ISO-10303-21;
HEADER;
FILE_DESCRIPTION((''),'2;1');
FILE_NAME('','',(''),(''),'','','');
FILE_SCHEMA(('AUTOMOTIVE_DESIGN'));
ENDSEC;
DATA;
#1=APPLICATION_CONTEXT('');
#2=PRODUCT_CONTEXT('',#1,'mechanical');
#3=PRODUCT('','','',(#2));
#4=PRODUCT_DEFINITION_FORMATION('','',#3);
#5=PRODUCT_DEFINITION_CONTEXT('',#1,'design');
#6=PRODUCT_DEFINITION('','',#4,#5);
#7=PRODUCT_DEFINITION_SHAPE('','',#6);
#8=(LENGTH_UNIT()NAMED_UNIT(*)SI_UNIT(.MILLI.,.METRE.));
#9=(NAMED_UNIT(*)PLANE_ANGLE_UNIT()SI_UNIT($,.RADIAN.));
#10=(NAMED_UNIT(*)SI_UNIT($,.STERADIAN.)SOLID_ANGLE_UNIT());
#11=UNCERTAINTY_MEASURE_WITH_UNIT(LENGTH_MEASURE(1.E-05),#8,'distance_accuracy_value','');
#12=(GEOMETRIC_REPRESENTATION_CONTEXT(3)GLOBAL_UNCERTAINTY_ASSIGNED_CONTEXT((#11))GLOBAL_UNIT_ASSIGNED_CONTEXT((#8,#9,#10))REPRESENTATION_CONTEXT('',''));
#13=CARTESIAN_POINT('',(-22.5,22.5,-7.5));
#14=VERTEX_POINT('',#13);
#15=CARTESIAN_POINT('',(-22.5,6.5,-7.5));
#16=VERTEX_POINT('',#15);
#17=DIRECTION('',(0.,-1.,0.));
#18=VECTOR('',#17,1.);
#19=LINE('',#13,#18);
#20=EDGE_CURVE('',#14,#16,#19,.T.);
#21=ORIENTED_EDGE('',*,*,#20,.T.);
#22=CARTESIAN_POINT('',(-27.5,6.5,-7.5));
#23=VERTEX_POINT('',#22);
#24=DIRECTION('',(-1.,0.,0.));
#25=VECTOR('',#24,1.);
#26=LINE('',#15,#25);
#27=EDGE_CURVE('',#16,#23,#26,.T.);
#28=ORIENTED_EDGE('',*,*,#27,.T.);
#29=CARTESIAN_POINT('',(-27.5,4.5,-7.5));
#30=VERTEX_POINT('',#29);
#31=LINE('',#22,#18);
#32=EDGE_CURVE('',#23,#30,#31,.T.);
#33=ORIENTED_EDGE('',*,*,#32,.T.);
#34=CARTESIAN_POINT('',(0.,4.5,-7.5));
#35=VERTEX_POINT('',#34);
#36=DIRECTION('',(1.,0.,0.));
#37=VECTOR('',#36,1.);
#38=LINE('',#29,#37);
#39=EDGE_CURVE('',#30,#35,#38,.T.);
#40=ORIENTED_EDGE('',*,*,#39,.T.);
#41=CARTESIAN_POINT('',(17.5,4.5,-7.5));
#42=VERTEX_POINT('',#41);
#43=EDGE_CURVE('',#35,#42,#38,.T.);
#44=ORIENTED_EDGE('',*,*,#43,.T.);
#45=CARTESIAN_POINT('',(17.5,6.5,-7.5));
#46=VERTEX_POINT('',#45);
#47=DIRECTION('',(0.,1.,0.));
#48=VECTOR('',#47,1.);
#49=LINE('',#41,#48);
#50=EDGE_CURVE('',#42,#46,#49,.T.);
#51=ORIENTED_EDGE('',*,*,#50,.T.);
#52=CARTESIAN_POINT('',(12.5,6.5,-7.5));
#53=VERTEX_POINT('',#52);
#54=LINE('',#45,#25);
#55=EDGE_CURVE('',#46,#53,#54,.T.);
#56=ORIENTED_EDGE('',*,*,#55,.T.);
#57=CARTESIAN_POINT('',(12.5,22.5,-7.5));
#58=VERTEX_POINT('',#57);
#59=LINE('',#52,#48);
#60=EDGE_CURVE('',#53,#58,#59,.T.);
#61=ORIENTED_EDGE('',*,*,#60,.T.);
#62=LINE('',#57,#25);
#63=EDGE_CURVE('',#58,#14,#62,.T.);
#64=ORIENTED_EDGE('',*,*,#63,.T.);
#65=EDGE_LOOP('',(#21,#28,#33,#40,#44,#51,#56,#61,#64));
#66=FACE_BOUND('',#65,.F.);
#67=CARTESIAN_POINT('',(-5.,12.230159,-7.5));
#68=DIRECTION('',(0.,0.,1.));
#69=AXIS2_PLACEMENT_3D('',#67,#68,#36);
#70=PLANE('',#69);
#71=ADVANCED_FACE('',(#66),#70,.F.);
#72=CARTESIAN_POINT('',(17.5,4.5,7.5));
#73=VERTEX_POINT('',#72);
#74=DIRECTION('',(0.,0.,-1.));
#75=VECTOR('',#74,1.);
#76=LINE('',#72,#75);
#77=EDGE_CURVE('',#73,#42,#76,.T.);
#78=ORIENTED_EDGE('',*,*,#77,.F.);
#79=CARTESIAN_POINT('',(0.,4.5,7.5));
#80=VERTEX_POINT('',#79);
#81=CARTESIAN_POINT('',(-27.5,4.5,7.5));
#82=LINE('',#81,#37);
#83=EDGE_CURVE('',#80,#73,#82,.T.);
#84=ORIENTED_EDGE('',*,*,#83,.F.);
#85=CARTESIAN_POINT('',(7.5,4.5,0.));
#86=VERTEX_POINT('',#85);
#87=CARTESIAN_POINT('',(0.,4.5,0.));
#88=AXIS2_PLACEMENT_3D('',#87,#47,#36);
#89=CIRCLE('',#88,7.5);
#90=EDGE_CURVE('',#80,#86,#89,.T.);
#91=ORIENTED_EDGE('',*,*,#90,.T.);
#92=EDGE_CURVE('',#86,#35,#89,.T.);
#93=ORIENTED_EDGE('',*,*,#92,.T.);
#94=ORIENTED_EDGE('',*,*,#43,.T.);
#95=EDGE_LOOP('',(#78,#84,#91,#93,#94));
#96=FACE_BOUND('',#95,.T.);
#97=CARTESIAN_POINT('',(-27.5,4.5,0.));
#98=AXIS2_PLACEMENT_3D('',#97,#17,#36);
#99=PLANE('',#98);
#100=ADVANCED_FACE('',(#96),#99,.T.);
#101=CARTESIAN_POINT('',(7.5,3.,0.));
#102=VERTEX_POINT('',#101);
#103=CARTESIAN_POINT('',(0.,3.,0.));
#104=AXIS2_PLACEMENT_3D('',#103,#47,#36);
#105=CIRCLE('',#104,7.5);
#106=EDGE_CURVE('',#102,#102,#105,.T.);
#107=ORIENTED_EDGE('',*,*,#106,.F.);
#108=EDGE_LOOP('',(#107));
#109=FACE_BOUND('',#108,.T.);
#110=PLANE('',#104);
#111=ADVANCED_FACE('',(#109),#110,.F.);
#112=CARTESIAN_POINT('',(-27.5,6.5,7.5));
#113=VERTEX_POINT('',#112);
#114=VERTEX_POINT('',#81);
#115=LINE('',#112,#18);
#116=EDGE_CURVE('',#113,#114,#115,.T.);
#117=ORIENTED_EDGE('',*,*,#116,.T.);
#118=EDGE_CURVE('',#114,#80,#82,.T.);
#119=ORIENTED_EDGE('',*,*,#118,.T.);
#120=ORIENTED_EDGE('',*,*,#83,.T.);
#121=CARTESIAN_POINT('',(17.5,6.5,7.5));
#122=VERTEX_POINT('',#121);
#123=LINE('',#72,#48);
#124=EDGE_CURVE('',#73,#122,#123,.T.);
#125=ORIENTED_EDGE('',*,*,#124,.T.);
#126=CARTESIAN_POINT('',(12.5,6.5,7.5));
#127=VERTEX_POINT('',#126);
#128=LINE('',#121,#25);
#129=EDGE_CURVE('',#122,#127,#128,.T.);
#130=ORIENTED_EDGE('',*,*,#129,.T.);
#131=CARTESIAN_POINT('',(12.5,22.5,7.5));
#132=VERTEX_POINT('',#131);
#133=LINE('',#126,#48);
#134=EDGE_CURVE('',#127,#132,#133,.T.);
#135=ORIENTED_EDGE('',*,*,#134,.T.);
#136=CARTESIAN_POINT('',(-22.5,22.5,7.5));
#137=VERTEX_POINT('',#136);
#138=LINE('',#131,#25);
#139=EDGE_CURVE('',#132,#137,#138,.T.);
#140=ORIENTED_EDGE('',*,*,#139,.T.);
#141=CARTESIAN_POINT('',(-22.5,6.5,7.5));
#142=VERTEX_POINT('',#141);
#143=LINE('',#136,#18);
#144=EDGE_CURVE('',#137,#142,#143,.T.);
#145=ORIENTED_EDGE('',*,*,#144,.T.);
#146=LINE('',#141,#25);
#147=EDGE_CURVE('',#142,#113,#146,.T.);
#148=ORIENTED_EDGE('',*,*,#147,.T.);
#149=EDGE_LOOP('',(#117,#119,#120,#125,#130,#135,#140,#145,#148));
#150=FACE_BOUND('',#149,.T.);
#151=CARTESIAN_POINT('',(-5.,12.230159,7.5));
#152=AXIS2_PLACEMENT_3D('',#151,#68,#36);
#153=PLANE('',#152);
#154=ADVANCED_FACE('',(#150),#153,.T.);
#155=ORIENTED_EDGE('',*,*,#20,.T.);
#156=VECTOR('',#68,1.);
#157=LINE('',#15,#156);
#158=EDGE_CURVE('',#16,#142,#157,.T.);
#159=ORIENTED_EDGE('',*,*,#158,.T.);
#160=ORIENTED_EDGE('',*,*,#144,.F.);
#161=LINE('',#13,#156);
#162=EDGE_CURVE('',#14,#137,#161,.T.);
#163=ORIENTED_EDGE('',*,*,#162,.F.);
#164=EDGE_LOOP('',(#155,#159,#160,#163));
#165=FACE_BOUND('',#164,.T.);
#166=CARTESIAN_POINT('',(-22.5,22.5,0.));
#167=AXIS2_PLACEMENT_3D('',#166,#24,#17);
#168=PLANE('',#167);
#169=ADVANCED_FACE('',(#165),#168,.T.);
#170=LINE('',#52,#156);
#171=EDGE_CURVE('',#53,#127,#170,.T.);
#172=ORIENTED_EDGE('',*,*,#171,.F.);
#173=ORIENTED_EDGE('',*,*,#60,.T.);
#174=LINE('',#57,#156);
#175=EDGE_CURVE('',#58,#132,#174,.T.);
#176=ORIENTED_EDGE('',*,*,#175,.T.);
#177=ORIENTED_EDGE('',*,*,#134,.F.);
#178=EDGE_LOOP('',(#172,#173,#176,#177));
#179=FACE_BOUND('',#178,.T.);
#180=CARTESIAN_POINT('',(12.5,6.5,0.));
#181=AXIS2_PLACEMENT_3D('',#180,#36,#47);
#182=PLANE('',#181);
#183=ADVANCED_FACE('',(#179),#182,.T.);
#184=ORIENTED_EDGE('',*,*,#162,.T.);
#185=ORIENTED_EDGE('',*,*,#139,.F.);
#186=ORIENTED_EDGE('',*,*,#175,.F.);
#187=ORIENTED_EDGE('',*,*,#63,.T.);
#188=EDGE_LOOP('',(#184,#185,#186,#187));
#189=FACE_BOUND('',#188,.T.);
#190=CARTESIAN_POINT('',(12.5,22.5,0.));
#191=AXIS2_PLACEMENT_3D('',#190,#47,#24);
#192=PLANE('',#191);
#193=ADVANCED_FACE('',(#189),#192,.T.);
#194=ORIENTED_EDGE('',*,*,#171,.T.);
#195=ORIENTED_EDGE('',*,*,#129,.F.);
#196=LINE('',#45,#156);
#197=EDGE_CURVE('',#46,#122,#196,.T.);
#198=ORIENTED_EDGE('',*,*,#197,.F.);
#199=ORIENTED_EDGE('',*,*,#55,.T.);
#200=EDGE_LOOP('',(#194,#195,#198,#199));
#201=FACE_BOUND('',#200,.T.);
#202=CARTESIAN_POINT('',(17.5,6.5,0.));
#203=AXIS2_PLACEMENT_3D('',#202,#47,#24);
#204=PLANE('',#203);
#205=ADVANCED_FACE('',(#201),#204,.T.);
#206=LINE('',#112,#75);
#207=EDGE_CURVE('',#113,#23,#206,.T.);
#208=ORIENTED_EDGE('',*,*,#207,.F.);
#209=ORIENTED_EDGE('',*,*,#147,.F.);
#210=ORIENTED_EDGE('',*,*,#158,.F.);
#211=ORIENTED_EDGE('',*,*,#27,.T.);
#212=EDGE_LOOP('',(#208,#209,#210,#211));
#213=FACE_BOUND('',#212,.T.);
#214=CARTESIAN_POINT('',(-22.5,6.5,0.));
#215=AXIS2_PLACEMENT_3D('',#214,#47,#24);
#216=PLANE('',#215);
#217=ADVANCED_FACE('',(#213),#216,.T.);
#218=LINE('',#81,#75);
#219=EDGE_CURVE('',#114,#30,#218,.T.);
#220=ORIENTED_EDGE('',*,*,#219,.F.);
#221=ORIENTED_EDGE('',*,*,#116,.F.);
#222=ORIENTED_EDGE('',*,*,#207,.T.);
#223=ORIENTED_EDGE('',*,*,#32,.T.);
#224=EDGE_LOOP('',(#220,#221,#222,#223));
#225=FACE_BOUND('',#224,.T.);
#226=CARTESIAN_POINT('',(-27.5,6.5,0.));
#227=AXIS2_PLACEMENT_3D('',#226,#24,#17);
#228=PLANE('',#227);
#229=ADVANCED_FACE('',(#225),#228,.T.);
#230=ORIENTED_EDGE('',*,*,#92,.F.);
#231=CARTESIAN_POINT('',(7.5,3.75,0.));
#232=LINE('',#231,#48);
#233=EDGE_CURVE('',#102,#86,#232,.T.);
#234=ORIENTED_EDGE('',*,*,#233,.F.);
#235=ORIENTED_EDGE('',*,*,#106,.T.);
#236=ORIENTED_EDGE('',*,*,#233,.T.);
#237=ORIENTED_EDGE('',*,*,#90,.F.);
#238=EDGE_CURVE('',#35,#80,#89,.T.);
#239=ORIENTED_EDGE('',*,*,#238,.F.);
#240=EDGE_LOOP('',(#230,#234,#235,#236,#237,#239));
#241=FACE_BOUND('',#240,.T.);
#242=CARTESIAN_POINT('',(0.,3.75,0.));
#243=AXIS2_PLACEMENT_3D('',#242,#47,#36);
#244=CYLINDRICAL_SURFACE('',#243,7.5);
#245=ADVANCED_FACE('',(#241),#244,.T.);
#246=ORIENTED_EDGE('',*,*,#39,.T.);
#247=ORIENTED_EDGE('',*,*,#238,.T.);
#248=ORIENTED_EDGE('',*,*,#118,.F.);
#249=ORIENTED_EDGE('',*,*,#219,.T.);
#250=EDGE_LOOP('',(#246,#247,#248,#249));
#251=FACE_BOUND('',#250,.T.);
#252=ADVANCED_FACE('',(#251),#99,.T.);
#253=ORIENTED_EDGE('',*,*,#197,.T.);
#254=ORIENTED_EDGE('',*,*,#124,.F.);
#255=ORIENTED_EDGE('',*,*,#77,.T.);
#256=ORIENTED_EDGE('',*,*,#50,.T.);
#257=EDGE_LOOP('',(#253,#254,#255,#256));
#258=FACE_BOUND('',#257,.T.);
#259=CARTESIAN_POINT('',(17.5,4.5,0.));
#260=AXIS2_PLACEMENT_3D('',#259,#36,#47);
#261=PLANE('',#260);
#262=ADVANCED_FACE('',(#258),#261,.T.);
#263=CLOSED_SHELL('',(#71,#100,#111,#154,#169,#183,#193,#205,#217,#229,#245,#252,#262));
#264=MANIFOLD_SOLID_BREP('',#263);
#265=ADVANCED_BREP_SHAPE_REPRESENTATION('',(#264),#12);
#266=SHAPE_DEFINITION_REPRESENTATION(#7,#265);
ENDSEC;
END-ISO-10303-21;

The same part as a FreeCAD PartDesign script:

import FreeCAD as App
import Part
import Sketcher
from FreeCAD import Vector


def add_polygon(sketch, points):
    """Adds a closed chain of lines whose ends are joined by coincident constraints."""
    first, n = sketch.GeometryCount, len(points)
    for a, b in zip(points, points[1:] + points[:1]):
        sketch.addGeometry(Part.LineSegment(App.Vector(*a, 0), App.Vector(*b, 0)), False)
    for i in range(n):
        sketch.addConstraint(Sketcher.Constraint("Coincident", first + i, 2, first + (i + 1) % n, 1))

doc = App.newDocument("Part")
body = doc.addObject("PartDesign::Body", "Body")

sketch1 = body.newObject("Sketcher::SketchObject", "Sketch")
sketch1.AttachmentSupport = (doc.getObject("XY_Plane"), [""])
sketch1.MapMode = "FlatFace"
add_polygon(sketch1, [(17.5, 4.5), (17.5, 6.5), (12.5, 6.5), (12.5, 22.5), (-22.5, 22.5), (-22.5, 6.5), (-27.5, 6.5), (-27.5, 4.5)])
sketch1.addConstraint(Sketcher.Constraint("Vertical", 0))
sketch1.addConstraint(Sketcher.Constraint("Horizontal", 1))
sketch1.addConstraint(Sketcher.Constraint("Vertical", 2))
sketch1.addConstraint(Sketcher.Constraint("Horizontal", 3))
sketch1.addConstraint(Sketcher.Constraint("Vertical", 4))
sketch1.addConstraint(Sketcher.Constraint("Horizontal", 5))
sketch1.addConstraint(Sketcher.Constraint("Vertical", 6))
sketch1.addConstraint(Sketcher.Constraint("Horizontal", 7))
sketch1.addConstraint(Sketcher.Constraint("Horizontal", 1, 2, 4, 2))
sketch1.addConstraint(Sketcher.Constraint("Equal", 1, 5))
sketch1.addConstraint(Sketcher.Constraint("DistanceX", 1, 2, 1, 1, 5.0))
sketch1.addConstraint(Sketcher.Constraint("DistanceX", 3, 2, 3, 1, 35.0))
sketch1.addConstraint(Sketcher.Constraint("DistanceY", 0, 1, 0, 2, 2.0))
sketch1.addConstraint(Sketcher.Constraint("DistanceY", 2, 1, 2, 2, 16.0))
sketch1.addConstraint(Sketcher.Constraint("DistanceX", -1, 1, 0, 2, 17.5))
sketch1.addConstraint(Sketcher.Constraint("DistanceY", -1, 1, 0, 2, 6.5))
pad1 = body.newObject("PartDesign::Pad", "Pad")
pad1.Profile = sketch1
pad1.Length = 15
pad1.Midplane = True

sketch2 = body.newObject("Sketcher::SketchObject", "Sketch001")
sketch2.AttachmentSupport = (doc.getObject("XY_Plane"), [""])
sketch2.MapMode = "FlatFace"
add_polygon(sketch2, [(0, 4.5), (0, 3), (7.5, 3), (7.5, 4.5)])
sketch2.addConstraint(Sketcher.Constraint("Vertical", 0))
sketch2.addConstraint(Sketcher.Constraint("Horizontal", 1))
sketch2.addConstraint(Sketcher.Constraint("Vertical", 2))
sketch2.addConstraint(Sketcher.Constraint("Horizontal", 3))
sketch2.addConstraint(Sketcher.Constraint("PointOnObject", 0, 2, -2))
sketch2.addConstraint(Sketcher.Constraint("DistanceX", 1, 1, 1, 2, 7.5))
sketch2.addConstraint(Sketcher.Constraint("DistanceY", 0, 2, 0, 1, 1.5))
sketch2.addConstraint(Sketcher.Constraint("DistanceY", -1, 1, 0, 2, 3.0))
revolution = body.newObject("PartDesign::Revolution", "Revolution")
revolution.Profile = sketch2
revolution.ReferenceAxis = (sketch2, ["V_Axis"])
revolution.Angle = 360

doc.recompute()
